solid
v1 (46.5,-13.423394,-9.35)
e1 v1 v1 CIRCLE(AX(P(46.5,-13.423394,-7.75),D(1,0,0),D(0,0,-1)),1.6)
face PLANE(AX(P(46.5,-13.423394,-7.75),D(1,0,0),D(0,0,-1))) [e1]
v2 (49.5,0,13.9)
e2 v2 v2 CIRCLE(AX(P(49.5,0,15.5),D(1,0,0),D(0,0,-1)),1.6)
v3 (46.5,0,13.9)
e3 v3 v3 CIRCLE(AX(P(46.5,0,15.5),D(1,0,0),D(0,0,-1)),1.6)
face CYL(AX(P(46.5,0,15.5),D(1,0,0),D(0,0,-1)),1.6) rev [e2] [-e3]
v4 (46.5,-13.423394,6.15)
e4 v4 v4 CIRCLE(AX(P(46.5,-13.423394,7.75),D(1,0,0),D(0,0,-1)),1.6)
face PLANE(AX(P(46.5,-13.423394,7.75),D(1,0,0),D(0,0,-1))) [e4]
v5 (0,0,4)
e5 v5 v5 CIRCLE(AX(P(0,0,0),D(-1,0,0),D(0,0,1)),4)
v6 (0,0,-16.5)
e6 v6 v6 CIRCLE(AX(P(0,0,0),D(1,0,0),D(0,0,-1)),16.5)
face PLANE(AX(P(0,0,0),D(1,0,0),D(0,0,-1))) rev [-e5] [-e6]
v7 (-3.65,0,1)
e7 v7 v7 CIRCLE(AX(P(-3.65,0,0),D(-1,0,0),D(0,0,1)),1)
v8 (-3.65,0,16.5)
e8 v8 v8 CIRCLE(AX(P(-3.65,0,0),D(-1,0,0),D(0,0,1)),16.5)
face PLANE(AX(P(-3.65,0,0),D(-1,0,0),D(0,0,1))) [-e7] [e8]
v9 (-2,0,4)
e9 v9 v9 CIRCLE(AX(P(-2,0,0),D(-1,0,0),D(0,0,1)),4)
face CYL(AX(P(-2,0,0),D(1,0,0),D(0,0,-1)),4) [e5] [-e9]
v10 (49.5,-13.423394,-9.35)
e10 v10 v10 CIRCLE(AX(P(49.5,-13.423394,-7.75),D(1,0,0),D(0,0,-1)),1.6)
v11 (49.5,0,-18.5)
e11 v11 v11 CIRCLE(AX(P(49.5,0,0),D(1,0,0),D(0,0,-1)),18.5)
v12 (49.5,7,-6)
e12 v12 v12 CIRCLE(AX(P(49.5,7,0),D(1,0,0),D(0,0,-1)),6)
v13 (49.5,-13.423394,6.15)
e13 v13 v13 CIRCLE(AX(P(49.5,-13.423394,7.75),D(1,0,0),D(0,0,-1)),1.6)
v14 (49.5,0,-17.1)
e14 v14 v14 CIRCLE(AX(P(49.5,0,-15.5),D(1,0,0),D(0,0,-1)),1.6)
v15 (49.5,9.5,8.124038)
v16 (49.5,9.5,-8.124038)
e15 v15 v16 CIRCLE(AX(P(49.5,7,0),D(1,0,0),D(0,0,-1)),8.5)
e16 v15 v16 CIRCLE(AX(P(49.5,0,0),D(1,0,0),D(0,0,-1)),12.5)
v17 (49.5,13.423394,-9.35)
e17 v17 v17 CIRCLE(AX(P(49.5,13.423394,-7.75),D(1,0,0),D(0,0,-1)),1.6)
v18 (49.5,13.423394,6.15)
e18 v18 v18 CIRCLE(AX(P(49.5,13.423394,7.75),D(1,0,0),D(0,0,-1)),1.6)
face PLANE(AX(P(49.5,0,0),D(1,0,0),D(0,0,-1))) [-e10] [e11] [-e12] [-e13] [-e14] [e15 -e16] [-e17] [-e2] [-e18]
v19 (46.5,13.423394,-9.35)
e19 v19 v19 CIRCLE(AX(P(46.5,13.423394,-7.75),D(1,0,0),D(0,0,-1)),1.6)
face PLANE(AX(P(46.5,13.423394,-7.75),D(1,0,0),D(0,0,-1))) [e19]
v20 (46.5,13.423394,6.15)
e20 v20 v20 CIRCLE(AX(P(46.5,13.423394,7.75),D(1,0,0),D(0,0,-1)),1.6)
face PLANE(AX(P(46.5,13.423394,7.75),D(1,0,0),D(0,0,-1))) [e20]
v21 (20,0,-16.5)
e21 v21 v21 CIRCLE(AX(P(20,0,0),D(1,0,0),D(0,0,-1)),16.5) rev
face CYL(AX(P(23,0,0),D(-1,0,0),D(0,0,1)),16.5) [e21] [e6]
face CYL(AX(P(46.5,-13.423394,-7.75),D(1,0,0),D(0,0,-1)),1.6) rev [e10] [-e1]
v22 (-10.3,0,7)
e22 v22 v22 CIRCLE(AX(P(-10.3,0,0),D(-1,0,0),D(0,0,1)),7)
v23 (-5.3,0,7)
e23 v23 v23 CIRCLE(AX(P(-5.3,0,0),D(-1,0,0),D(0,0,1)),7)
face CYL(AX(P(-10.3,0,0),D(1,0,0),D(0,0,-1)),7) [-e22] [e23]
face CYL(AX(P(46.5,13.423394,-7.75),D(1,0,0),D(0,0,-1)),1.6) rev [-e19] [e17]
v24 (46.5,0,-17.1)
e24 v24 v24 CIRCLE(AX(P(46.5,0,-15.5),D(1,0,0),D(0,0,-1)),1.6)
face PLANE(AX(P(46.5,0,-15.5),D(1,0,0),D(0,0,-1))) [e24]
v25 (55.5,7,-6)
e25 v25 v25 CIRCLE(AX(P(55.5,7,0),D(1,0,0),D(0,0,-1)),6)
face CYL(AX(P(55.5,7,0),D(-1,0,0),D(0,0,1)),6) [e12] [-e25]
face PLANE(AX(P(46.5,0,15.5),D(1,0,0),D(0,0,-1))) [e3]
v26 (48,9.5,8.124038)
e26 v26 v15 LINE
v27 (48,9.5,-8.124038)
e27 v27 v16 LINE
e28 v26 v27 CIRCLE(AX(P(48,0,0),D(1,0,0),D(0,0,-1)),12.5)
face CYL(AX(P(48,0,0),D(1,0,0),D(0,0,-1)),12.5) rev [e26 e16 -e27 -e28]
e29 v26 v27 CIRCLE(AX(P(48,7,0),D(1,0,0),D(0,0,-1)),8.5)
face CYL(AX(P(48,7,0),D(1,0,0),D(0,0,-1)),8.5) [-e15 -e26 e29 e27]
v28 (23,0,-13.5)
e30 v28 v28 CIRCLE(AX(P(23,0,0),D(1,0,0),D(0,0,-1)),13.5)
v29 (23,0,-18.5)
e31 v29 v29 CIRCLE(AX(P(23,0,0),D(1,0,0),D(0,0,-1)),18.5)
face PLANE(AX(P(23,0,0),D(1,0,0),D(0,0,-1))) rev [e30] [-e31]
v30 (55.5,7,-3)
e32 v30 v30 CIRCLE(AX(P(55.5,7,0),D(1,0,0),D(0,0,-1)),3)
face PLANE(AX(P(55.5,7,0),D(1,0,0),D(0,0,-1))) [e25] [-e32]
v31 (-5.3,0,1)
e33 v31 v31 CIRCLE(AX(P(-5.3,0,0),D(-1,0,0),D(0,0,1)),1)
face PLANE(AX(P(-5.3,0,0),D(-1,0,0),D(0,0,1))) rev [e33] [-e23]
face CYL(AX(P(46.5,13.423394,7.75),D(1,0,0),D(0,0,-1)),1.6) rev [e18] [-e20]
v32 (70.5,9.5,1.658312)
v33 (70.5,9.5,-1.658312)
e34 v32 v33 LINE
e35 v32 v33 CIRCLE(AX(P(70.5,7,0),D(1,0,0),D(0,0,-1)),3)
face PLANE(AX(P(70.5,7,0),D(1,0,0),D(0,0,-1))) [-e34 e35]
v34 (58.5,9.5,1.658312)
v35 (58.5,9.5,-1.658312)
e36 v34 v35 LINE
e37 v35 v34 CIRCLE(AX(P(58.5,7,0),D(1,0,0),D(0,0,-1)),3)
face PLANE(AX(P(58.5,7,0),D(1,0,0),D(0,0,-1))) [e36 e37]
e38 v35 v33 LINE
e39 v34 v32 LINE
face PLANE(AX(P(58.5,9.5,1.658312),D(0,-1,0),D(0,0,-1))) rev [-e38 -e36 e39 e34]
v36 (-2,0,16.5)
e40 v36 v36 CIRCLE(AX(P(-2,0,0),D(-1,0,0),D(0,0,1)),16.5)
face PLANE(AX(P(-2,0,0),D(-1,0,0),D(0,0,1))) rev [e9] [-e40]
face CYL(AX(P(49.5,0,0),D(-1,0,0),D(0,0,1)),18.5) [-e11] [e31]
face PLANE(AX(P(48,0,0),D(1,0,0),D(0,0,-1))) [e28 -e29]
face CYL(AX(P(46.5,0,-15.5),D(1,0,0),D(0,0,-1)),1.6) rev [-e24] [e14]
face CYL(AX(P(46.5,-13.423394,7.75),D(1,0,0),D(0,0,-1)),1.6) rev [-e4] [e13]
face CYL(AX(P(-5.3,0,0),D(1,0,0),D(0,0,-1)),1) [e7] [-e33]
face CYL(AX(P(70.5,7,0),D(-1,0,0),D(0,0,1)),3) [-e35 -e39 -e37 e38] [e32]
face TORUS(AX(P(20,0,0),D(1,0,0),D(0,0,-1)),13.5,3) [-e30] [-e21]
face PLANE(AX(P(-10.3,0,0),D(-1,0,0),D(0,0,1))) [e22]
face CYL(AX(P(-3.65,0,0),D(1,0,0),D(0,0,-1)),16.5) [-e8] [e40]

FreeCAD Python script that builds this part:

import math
import FreeCAD as App
import Part
import Sketcher

V = App.Vector
Q = App.Units.Quantity


def edges_at(feature, points):
    """Names of the edges that pass closest to the given points."""
    edges = feature.Shape.Edges
    near = lambda p: min(range(len(edges)), key=lambda i: edges[i].distToShape(Part.Vertex(*p))[0])
    return sorted({f"Edge{near(p) + 1}" for p in points})

doc = App.newDocument("Part")
body = doc.addObject("PartDesign::Body", "Body")

# Sketch on YZ plane
sketch1 = body.newObject("Sketcher::SketchObject", "Sketch")
sketch1.AttachmentSupport = (doc.getObject("YZ_Plane"), [""])
sketch1.MapMode = "FlatFace"
sketch1.addGeometry(Part.Circle(V(0, 0, 0), V(0, 0, 1), 16), False)
sketch1.addConstraint([
    Sketcher.Constraint("Coincident", 0, 3, -1, 1),
    Sketcher.Constraint("Diameter", 0, Q("33 mm")),
])
pad1 = body.newObject("PartDesign::Pad", "Pad")
pad1.Profile = sketch1
pad1.Length = 23
doc.recompute()

fillet = body.newObject("PartDesign::Fillet", "Fillet")
fillet.Base = (pad1, edges_at(pad1, [(23, 0, 16.5)]))
fillet.Radius = 3

# Sketch on YZ plane
sketch2 = body.newObject("Sketcher::SketchObject", "Sketch001")
sketch2.AttachmentSupport = (doc.getObject("YZ_Plane"), [""])
sketch2.MapMode = "FlatFace"
sketch2.AttachmentOffset = App.Placement(V(0, 0, 23), App.Rotation())
sketch2.addGeometry(Part.Circle(V(0, 0, 0), V(0, 0, 1), 18), False)
sketch2.addConstraint([
    Sketcher.Constraint("Coincident", 0, 3, -1, 1),
    Sketcher.Constraint("Diameter", 0, Q("37 mm")),
])
pad2 = body.newObject("PartDesign::Pad", "Pad001")
pad2.Profile = sketch2
pad2.Length = 26.5

# Sketch on YZ plane
sketch3 = body.newObject("Sketcher::SketchObject", "Sketch002")
sketch3.AttachmentSupport = (doc.getObject("YZ_Plane"), [""])
sketch3.MapMode = "FlatFace"
sketch3.AttachmentOffset = App.Placement(V(0, 0, 49.5), App.Rotation())
sketch3.addGeometry(Part.Circle(V(7, 0, 0), V(0, 0, 1), 6), False)
sketch3.addConstraint([
    Sketcher.Constraint("PointOnObject", 0, 3, -1),
    Sketcher.Constraint("Diameter", 0, Q("12 mm")),
    Sketcher.Constraint("DistanceX", -1, 1, 0, 3, Q("7 mm")),
])
pad3 = body.newObject("PartDesign::Pad", "Pad002")
pad3.Profile = sketch3
pad3.Length = 6

# Sketch on YZ plane
sketch4 = body.newObject("Sketcher::SketchObject", "Sketch003")
sketch4.AttachmentSupport = (doc.getObject("YZ_Plane"), [""])
sketch4.MapMode = "FlatFace"
sketch4.AttachmentOffset = App.Placement(V(0, 0, 49.5), App.Rotation())
sketch4.addGeometry([
    Part.ArcOfCircle(Part.Circle(V(7, 0, 0), V(0, 0, 1), 8.5), math.radians(-90), math.radians(-72.9)),
    Part.ArcOfCircle(Part.Circle(V(7, 0, 0), V(0, 0, 1), 8.5), math.radians(73), math.radians(270)),
    Part.ArcOfCircle(Part.Circle(V(0, 0, 0), V(0, 0, 1), 12.5), math.radians(41), math.radians(319)),
], False)
sketch4.addConstraint([
    Sketcher.Constraint("Tangent", 0, 1, 1, 2),
    Sketcher.Constraint("Coincident", 1, 1, 2, 1),
    Sketcher.Constraint("Coincident", 2, 2, 0, 2),
    Sketcher.Constraint("Coincident", 2, 3, -1, 1),
    Sketcher.Constraint("Equal", 0, 1),
    Sketcher.Constraint("PointOnObject", 0, 3, -1),
    Sketcher.Constraint("Vertical", 1, 3, 0, 1),
    Sketcher.Constraint("Radius", 0, Q("8.5 mm")),
    Sketcher.Constraint("Radius", 2, Q("12.5 mm")),
    Sketcher.Constraint("DistanceX", -1, 1, 0, 3, Q("7 mm")),
])
pocket1 = body.newObject("PartDesign::Pocket", "Pocket")
pocket1.Profile = sketch4
pocket1.Length = 1.5

# Sketch on YZ plane
sketch5 = body.newObject("Sketcher::SketchObject", "Sketch004")
sketch5.AttachmentSupport = (doc.getObject("YZ_Plane"), [""])
sketch5.MapMode = "FlatFace"
sketch5.AttachmentOffset = App.Placement(V(0, 0, 55.5), App.Rotation())
sketch5.addGeometry(Part.Circle(V(7, 0, 0), V(0, 0, 1), 3), False)
sketch5.addConstraint([
    Sketcher.Constraint("PointOnObject", 0, 3, -1),
    Sketcher.Constraint("Diameter", 0, Q("6 mm")),
    Sketcher.Constraint("DistanceX", -1, 1, 0, 3, Q("7 mm")),
])
pad4 = body.newObject("PartDesign::Pad", "Pad003")
pad4.Profile = sketch5
pad4.Length = 15

# Sketch on YZ plane
sketch6 = body.newObject("Sketcher::SketchObject", "Sketch005")
sketch6.AttachmentSupport = (doc.getObject("YZ_Plane"), [""])
sketch6.MapMode = "FlatFace"
sketch6.AttachmentOffset = App.Placement(V(0, 0, 58.5), App.Rotation())
sketch6.addGeometry([
    Part.LineSegment(V(9.5, 1.7, 0), V(9.5, -1.7, 0)),
    Part.ArcOfCircle(Part.Circle(V(7, 0, 0), V(0, 0, 1), 3), math.radians(-34), math.radians(34)),
], False)
sketch6.addConstraint([
    Sketcher.Constraint("Coincident", 0, 1, 1, 2),
    Sketcher.Constraint("Coincident", 1, 1, 0, 2),
    Sketcher.Constraint("Vertical", 0),
    Sketcher.Constraint("PointOnObject", 1, 3, -1),
    Sketcher.Constraint("Radius", 1, Q("3 mm")),
    Sketcher.Constraint("DistanceX", -1, 1, 1, 3, Q("7 mm")),
    Sketcher.Constraint("DistanceX", -1, 1, 0, 1, Q("9.5 mm")),
])
pocket2 = body.newObject("PartDesign::Pocket", "Pocket001")
pocket2.Profile = sketch6
pocket2.Length = 12
pocket2.Reversed = True

# Sketch on YZ plane
sketch7 = body.newObject("Sketcher::SketchObject", "Sketch006")
sketch7.AttachmentSupport = (doc.getObject("YZ_Plane"), [""])
sketch7.MapMode = "FlatFace"
sketch7.AttachmentOffset = App.Placement(V(0, 0, 49.5), App.Rotation())
sketch7.addGeometry([
    Part.Circle(V(0, 15.5, 0), V(0, 0, 1), 1.6),  # 0
    Part.Circle(V(13.4, 7.8, 0), V(0, 0, 1), 1.6),  # 1
    Part.Circle(V(13.4, -7.8, 0), V(0, 0, 1), 1.6),  # 2
    Part.Circle(V(0, -15.5, 0), V(0, 0, 1), 1.6),  # 3
    Part.Circle(V(-13.4, -7.8, 0), V(0, 0, 1), 1.6),  # 4
    Part.Circle(V(-13.4, 7.8, 0), V(0, 0, 1), 1.6),  # 5
], False)
sketch7.addConstraint([
    Sketcher.Constraint("Equal", 0, 1),
    Sketcher.Constraint("Equal", 1, 2),
    Sketcher.Constraint("Equal", 2, 3),
    Sketcher.Constraint("Equal", 3, 4),
    Sketcher.Constraint("Equal", 4, 5),
    Sketcher.Constraint("Symmetric", 0, 3, 3, 3, -1, 1),
    Sketcher.Constraint("Symmetric", 1, 3, 4, 3, -1, 1),
    Sketcher.Constraint("Symmetric", 2, 3, 5, 3, -1, 1),
    Sketcher.Constraint("Symmetric", 2, 3, 4, 3, -2),
    Sketcher.Constraint("PointOnObject", 0, 3, -2),
    Sketcher.Constraint("Diameter", 0, Q("3.2 mm")),
    Sketcher.Constraint("DistanceY", 3, 3, 0, 3, Q("31 mm")),
    Sketcher.Constraint("DistanceY", 2, 3, 1, 3, Q("15.5 mm")),
    Sketcher.Constraint("DistanceX", -1, 1, 1, 3, Q("13.423394 mm")),
])
pocket3 = body.newObject("PartDesign::Pocket", "Pocket002")
pocket3.Profile = sketch7
pocket3.Length = 3

# Sketch on YZ plane
sketch8 = body.newObject("Sketcher::SketchObject", "Sketch007")
sketch8.AttachmentSupport = (doc.getObject("YZ_Plane"), [""])
sketch8.MapMode = "FlatFace"
sketch8.addGeometry(Part.Circle(V(0, 0, 0), V(0, 0, 1), 4), False)
sketch8.addConstraint([
    Sketcher.Constraint("Coincident", 0, 3, -1, 1),
    Sketcher.Constraint("Diameter", 0, Q("8 mm")),
])
pad5 = body.newObject("PartDesign::Pad", "Pad004")
pad5.Profile = sketch8
pad5.Length = 2
pad5.Reversed = True

# Sketch on YZ plane
sketch9 = body.newObject("Sketcher::SketchObject", "Sketch008")
sketch9.AttachmentSupport = (doc.getObject("YZ_Plane"), [""])
sketch9.MapMode = "FlatFace"
sketch9.AttachmentOffset = App.Placement(V(0, 0, -3.65), App.Rotation())
sketch9.addGeometry(Part.Circle(V(0, 0, 0), V(0, 0, 1), 16), False)
sketch9.addConstraint([
    Sketcher.Constraint("Coincident", 0, 3, -1, 1),
    Sketcher.Constraint("Diameter", 0, Q("33 mm")),
])
pad6 = body.newObject("PartDesign::Pad", "Pad005")
pad6.Profile = sketch9
pad6.Length = 1.65

# Sketch on YZ plane
sketch10 = body.newObject("Sketcher::SketchObject", "Sketch009")
sketch10.AttachmentSupport = (doc.getObject("YZ_Plane"), [""])
sketch10.MapMode = "FlatFace"
sketch10.AttachmentOffset = App.Placement(V(0, 0, -3.65), App.Rotation())
sketch10.addGeometry(Part.Circle(V(0, 0, 0), V(0, 0, 1), 1), False)
sketch10.addConstraint([
    Sketcher.Constraint("Coincident", 0, 3, -1, 1),
    Sketcher.Constraint("Diameter", 0, Q("2 mm")),
])
pad7 = body.newObject("PartDesign::Pad", "Pad006")
pad7.Profile = sketch10
pad7.Length = 1.65
pad7.Reversed = True

# Sketch on YZ plane
sketch11 = body.newObject("Sketcher::SketchObject", "Sketch010")
sketch11.AttachmentSupport = (doc.getObject("YZ_Plane"), [""])
sketch11.MapMode = "FlatFace"
sketch11.AttachmentOffset = App.Placement(V(0, 0, -5.3), App.Rotation())
sketch11.addGeometry(Part.Circle(V(0, 0, 0), V(0, 0, 1), 7), False)
sketch11.addConstraint([
    Sketcher.Constraint("Coincident", 0, 3, -1, 1),
    Sketcher.Constraint("Diameter", 0, Q("14 mm")),
])
pad8 = body.newObject("PartDesign::Pad", "Pad007")
pad8.Profile = sketch11
pad8.Length = 5
pad8.Reversed = True

doc.recompute()
